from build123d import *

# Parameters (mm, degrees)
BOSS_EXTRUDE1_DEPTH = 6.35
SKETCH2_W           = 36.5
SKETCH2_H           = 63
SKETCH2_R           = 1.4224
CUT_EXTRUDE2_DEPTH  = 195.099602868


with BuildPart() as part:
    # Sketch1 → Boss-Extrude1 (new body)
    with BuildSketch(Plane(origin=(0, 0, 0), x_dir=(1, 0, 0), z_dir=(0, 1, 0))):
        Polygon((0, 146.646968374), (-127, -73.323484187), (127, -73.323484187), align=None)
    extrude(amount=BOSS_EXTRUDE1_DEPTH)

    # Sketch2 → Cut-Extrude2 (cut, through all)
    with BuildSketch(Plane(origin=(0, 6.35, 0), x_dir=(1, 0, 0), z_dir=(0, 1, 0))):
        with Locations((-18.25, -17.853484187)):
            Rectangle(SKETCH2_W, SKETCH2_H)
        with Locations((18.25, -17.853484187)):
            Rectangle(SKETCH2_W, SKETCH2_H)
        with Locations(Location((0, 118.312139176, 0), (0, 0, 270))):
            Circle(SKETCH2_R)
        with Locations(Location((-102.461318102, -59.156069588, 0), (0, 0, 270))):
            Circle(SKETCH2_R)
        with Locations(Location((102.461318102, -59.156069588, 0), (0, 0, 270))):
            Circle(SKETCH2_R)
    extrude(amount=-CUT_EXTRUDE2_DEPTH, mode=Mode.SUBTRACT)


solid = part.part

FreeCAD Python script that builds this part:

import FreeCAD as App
import Part
import Sketcher
from FreeCAD import Vector
Q = App.Units.Quantity


def add_polygon(sketch, points):
    """Adds a closed chain of lines whose ends are joined by coincident constraints."""
    first, n = sketch.GeometryCount, len(points)
    for a, b in zip(points, points[1:] + points[:1]):
        sketch.addGeometry(Part.LineSegment(App.Vector(*a, 0), App.Vector(*b, 0)), False)
    for i in range(n):
        sketch.addConstraint(Sketcher.Constraint("Coincident", first + i, 2, first + (i + 1) % n, 1))

doc = App.newDocument("Part")
body = doc.addObject("PartDesign::Body", "Body")

sketch1 = body.newObject("Sketcher::SketchObject", "Sketch")
sketch1.AttachmentSupport = (doc.getObject("XZ_Plane"), [""])
sketch1.MapMode = "FlatFace"
add_polygon(sketch1, [(0, -147), (-127, 73), (127, 73)])
sketch1.addConstraint([
    Sketcher.Constraint("Horizontal", 1),
    Sketcher.Constraint("PointOnObject", 2, 2, -2),
    Sketcher.Constraint("Equal", 0, 2),
    Sketcher.Constraint("DistanceX", 1, 1, 1, 2, Q("10 in")),
    Sketcher.Constraint("Distance", 0, Q("10 in")),
    Sketcher.Constraint("DistanceY", 2, 2, -1, 1, Q("146.646968 mm")),
])
pad1 = body.newObject("PartDesign::Pad", "Pad")
pad1.Profile = sketch1
pad1.Length = Q("0.25 in")
pad1.Reversed = True

sketch2 = body.newObject("Sketcher::SketchObject", "Sketch001")
sketch2.AttachmentSupport = (doc.getObject("XZ_Plane"), [""])
sketch2.MapMode = "FlatFace"
sketch2.AttachmentOffset = App.Placement(Vector(0, 0, -0.25 * 25.4), App.Rotation())
add_polygon(sketch2, [(-36.5, -13.6), (-36.5, 49.4), (36.5, 49.4), (36.5, -13.6)])
sketch2.addGeometry(Part.Circle(Vector(0, -118.3, 0), Vector(0, 0, 1), 1.4), False)
sketch2.addGeometry(Part.Circle(Vector(-102.5, 59.2, 0), Vector(0, 0, 1), 1.4), False)
sketch2.addGeometry(Part.Circle(Vector(102.5, 59.2, 0), Vector(0, 0, 1), 1.4), False)
sketch2.addConstraint([
    Sketcher.Constraint("Vertical", 0),
    Sketcher.Constraint("Horizontal", 1),
    Sketcher.Constraint("Vertical", 2),
    Sketcher.Constraint("Horizontal", 3),
    Sketcher.Constraint("Equal", 4, 5),
    Sketcher.Constraint("Equal", 5, 6),
    Sketcher.Constraint("Symmetric", 5, 3, 6, 3, -2),
    Sketcher.Constraint("PointOnObject", 4, 3, -2),
    Sketcher.Constraint("Diameter", 4, Q("0.112 in")),
    Sketcher.Constraint("DistanceX", 1, 1, 1, 2, Q("73 mm")),
    Sketcher.Constraint("DistanceY", 0, 1, 0, 2, Q("63 mm")),
    Sketcher.Constraint("DistanceX", 0, 2, -1, 1, Q("36.5 mm")),
    Sketcher.Constraint("DistanceY", 4, 3, -1, 1, Q("118.312139 mm")),
    Sketcher.Constraint("DistanceX", 5, 3, -1, 1, Q("102.461318 mm")),
    Sketcher.Constraint("DistanceY", -1, 1, 5, 3, Q("59.15607 mm")),
    Sketcher.Constraint("DistanceY", -1, 1, 0, 2, Q("49.353484 mm")),
])
pocket1 = body.newObject("PartDesign::Pocket", "Pocket")
pocket1.Profile = sketch2
pocket1.Type = "ThroughAll"
pocket1.Reversed = True

doc.recompute()
